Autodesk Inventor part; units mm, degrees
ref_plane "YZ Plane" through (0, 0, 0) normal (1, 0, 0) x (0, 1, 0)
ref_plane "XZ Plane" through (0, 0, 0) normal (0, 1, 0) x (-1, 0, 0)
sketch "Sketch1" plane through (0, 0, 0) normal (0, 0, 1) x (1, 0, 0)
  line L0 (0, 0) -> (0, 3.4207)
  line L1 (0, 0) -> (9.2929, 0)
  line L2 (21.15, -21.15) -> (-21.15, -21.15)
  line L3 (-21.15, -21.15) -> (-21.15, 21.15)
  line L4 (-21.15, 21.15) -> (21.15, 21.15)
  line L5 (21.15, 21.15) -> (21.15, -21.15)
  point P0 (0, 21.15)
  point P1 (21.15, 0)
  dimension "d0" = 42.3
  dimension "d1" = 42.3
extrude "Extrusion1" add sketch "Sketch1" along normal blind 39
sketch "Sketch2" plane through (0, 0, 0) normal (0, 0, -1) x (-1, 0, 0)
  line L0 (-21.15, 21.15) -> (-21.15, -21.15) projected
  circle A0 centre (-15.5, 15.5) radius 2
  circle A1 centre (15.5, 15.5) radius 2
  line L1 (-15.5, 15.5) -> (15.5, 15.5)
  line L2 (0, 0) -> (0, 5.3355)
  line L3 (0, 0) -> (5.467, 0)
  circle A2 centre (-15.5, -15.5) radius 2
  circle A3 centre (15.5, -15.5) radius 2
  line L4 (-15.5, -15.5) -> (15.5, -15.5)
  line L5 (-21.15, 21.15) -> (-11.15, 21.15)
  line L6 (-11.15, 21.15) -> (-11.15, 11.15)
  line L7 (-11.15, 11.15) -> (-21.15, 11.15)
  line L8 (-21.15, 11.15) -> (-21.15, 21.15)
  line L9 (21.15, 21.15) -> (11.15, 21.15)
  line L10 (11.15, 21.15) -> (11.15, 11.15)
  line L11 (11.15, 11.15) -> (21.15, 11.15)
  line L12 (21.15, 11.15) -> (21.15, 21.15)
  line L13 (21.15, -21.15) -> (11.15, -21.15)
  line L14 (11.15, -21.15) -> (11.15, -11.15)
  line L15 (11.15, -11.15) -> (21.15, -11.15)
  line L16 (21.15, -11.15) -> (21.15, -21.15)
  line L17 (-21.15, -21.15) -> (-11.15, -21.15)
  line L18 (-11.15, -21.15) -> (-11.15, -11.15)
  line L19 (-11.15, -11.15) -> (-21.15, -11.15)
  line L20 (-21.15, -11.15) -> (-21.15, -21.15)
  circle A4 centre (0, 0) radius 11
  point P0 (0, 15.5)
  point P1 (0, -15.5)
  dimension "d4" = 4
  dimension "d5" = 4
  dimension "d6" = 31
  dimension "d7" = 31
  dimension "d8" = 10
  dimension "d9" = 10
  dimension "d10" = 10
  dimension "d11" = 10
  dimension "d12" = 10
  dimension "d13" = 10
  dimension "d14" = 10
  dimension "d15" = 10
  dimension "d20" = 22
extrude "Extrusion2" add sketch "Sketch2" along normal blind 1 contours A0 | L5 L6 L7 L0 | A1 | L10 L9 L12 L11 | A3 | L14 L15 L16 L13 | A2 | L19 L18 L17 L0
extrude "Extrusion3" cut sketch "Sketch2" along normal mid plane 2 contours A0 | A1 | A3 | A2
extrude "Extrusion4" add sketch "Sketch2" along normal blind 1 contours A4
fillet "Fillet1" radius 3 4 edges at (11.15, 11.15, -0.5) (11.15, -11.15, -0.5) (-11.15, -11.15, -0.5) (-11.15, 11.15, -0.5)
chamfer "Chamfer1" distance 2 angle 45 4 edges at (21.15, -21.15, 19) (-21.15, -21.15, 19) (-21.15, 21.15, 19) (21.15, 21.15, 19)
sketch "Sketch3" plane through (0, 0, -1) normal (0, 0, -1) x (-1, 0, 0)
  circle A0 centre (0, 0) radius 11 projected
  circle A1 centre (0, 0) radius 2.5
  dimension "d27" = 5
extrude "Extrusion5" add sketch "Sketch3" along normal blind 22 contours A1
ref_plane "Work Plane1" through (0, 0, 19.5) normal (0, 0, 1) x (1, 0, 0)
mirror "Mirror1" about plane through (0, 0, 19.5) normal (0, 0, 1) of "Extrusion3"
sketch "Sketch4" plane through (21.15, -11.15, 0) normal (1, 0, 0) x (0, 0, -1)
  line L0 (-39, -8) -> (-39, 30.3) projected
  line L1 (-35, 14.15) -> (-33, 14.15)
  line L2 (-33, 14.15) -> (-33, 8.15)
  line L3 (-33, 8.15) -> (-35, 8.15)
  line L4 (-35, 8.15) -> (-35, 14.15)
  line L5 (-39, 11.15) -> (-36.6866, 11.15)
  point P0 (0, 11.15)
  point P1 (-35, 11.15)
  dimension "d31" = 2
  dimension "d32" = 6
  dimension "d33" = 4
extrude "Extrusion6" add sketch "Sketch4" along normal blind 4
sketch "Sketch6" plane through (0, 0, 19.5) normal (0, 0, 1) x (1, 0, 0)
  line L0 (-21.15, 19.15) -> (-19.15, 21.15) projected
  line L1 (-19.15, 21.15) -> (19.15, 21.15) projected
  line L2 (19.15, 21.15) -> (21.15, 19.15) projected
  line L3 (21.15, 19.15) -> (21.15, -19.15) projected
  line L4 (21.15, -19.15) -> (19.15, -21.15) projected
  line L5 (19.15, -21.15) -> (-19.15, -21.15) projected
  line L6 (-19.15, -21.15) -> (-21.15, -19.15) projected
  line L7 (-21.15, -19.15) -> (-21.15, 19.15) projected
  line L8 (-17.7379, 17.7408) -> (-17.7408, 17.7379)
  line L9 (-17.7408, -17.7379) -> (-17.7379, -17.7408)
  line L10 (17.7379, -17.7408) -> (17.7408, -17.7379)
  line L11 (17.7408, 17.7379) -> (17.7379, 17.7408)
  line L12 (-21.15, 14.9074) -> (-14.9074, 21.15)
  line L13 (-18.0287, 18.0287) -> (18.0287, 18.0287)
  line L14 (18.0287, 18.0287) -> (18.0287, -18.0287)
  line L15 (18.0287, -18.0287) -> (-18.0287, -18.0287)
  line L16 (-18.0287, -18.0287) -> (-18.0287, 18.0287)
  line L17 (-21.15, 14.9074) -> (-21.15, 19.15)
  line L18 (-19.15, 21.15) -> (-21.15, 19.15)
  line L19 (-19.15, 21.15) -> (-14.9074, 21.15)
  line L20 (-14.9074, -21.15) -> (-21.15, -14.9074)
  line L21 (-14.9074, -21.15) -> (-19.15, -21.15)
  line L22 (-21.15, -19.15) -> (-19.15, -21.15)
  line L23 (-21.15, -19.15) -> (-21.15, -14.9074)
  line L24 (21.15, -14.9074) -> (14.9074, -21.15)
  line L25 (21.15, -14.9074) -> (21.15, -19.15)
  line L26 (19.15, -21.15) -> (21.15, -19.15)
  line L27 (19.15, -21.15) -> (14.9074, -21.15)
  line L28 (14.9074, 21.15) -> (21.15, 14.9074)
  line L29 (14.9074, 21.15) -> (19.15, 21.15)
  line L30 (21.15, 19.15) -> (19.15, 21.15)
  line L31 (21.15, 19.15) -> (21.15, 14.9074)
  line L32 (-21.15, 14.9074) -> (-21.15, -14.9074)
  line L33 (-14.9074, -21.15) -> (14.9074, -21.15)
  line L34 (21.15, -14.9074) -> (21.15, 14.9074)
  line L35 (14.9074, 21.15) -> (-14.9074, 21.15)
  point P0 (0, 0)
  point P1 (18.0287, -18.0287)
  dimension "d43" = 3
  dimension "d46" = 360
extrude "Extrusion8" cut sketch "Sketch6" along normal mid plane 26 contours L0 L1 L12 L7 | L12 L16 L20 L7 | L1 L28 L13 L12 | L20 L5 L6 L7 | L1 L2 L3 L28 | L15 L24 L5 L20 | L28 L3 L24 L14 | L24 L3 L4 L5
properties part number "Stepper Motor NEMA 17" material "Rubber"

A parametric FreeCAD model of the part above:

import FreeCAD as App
import Part
import Sketcher


def edges_at(feature, points):
    """Names of the edges that pass closest to the given points."""
    edges = feature.Shape.Edges
    near = lambda p: min(range(len(edges)), key=lambda i: edges[i].distToShape(Part.Vertex(*p))[0])
    return sorted({f"Edge{near(p) + 1}" for p in points})

doc = App.newDocument("Part")
body = doc.addObject("PartDesign::Body", "Body")

# Sketch on XY plane
sketch1 = body.newObject("Sketcher::SketchObject", "Sketch")
sketch1.AttachmentSupport = (doc.getObject("XY_Plane"), [""])
sketch1.MapMode = "FlatFace"
sketch1.addGeometry(Part.LineSegment(App.Vector(-21.15, -21.15, 0), App.Vector(21.15, -21.15, 0)), False)
sketch1.addGeometry(Part.LineSegment(App.Vector(21.15, -21.15, 0), App.Vector(21.15, 21.15, 0)), False)
sketch1.addGeometry(Part.LineSegment(App.Vector(21.15, 21.15, 0), App.Vector(-21.15, 21.15, 0)), False)
sketch1.addGeometry(Part.LineSegment(App.Vector(-21.15, 21.15, 0), App.Vector(-21.15, -21.15, 0)), False)
sketch1.addConstraint(Sketcher.Constraint("Coincident", 0, 2, 1, 1))
sketch1.addConstraint(Sketcher.Constraint("Coincident", 1, 2, 2, 1))
sketch1.addConstraint(Sketcher.Constraint("Coincident", 2, 2, 3, 1))
sketch1.addConstraint(Sketcher.Constraint("Coincident", 3, 2, 0, 1))
sketch1.addConstraint(Sketcher.Constraint("Horizontal", 0))
sketch1.addConstraint(Sketcher.Constraint("Vertical", 1))
sketch1.addConstraint(Sketcher.Constraint("Horizontal", 2))
sketch1.addConstraint(Sketcher.Constraint("Vertical", 3))
sketch1.addConstraint(Sketcher.Constraint("Symmetric", 0, 2, 2, 2, -1, 1))
sketch1.addConstraint(Sketcher.Constraint("Equal", 2, 1))
sketch1.addConstraint(Sketcher.Constraint("DistanceX", 0, 1, 0, 2, 42.3))
pad1 = body.newObject("PartDesign::Pad", "Pad")
pad1.Profile = sketch1
pad1.Length = 39

# Sketch on XY plane
sketch2 = body.newObject("Sketcher::SketchObject", "Sketch001")
sketch2.AttachmentSupport = (doc.getObject("XY_Plane"), [""])
sketch2.MapMode = "FlatFace"
sketch2.addGeometry(Part.LineSegment(App.Vector(11.15, 21.15, 0), App.Vector(21.15, 21.15, 0)), False)
sketch2.addGeometry(Part.LineSegment(App.Vector(21.15, 21.15, 0), App.Vector(21.15, 11.15, 0)), False)
sketch2.addGeometry(Part.LineSegment(App.Vector(21.15, 11.15, 0), App.Vector(11.15, 11.15, 0)), False)
sketch2.addGeometry(Part.LineSegment(App.Vector(11.15, 11.15, 0), App.Vector(11.15, 15.5, 0)), False)
sketch2.addGeometry(Part.LineSegment(App.Vector(11.15, 15.5, 0), App.Vector(11.15, 21.15, 0)), False)
sketch2.addGeometry(Part.LineSegment(App.Vector(-11.15, 21.15, 0), App.Vector(-11.15, 15.5, 0)), False)
sketch2.addGeometry(Part.LineSegment(App.Vector(-11.15, 15.5, 0), App.Vector(-11.15, 11.15, 0)), False)
sketch2.addGeometry(Part.LineSegment(App.Vector(-11.15, 11.15, 0), App.Vector(-21.15, 11.15, 0)), False)
sketch2.addGeometry(Part.LineSegment(App.Vector(-21.15, 11.15, 0), App.Vector(-21.15, 21.15, 0)), False)
sketch2.addGeometry(Part.LineSegment(App.Vector(-21.15, 21.15, 0), App.Vector(-11.15, 21.15, 0)), False)
sketch2.addGeometry(Part.LineSegment(App.Vector(-11.15, -11.15, 0), App.Vector(-11.15, -15.5, 0)), False)
sketch2.addGeometry(Part.LineSegment(App.Vector(-11.15, -15.5, 0), App.Vector(-11.15, -21.15, 0)), False)
sketch2.addGeometry(Part.LineSegment(App.Vector(-11.15, -21.15, 0), App.Vector(-21.15, -21.15, 0)), False)
sketch2.addGeometry(Part.LineSegment(App.Vector(-21.15, -21.15, 0), App.Vector(-21.15, -11.15, 0)), False)
sketch2.addGeometry(Part.LineSegment(App.Vector(-21.15, -11.15, 0), App.Vector(-11.15, -11.15, 0)), False)
sketch2.addGeometry(Part.LineSegment(App.Vector(11.15, -11.15, 0), App.Vector(21.15, -11.15, 0)), False)
sketch2.addGeometry(Part.LineSegment(App.Vector(21.15, -11.15, 0), App.Vector(21.15, -21.15, 0)), False)
sketch2.addGeometry(Part.LineSegment(App.Vector(21.15, -21.15, 0), App.Vector(11.15, -21.15, 0)), False)
sketch2.addGeometry(Part.LineSegment(App.Vector(11.15, -21.15, 0), App.Vector(11.15, -15.5, 0)), False)
sketch2.addGeometry(Part.LineSegment(App.Vector(11.15, -15.5, 0), App.Vector(11.15, -11.15, 0)), False)
sketch2.addConstraint(Sketcher.Constraint("Coincident", 0, 2, 1, 1))
sketch2.addConstraint(Sketcher.Constraint("Coincident", 1, 2, 2, 1))
sketch2.addConstraint(Sketcher.Constraint("Coincident", 2, 2, 3, 1))
sketch2.addConstraint(Sketcher.Constraint("Coincident", 3, 2, 4, 1))
sketch2.addConstraint(Sketcher.Constraint("Coincident", 4, 2, 0, 1))
sketch2.addConstraint(Sketcher.Constraint("Coincident", 5, 2, 6, 1))
sketch2.addConstraint(Sketcher.Constraint("Coincident", 6, 2, 7, 1))
sketch2.addConstraint(Sketcher.Constraint("Coincident", 7, 2, 8, 1))
sketch2.addConstraint(Sketcher.Constraint("Coincident", 8, 2, 9, 1))
sketch2.addConstraint(Sketcher.Constraint("Coincident", 9, 2, 5, 1))
sketch2.addConstraint(Sketcher.Constraint("Coincident", 10, 2, 11, 1))
sketch2.addConstraint(Sketcher.Constraint("Coincident", 11, 2, 12, 1))
sketch2.addConstraint(Sketcher.Constraint("Coincident", 12, 2, 13, 1))
sketch2.addConstraint(Sketcher.Constraint("Coincident", 13, 2, 14, 1))
sketch2.addConstraint(Sketcher.Constraint("Coincident", 14, 2, 10, 1))
sketch2.addConstraint(Sketcher.Constraint("Coincident", 15, 2, 16, 1))
sketch2.addConstraint(Sketcher.Constraint("Coincident", 16, 2, 17, 1))
sketch2.addConstraint(Sketcher.Constraint("Coincident", 17, 2, 18, 1))
sketch2.addConstraint(Sketcher.Constraint("Coincident", 18, 2, 19, 1))
sketch2.addConstraint(Sketcher.Constraint("Coincident", 19, 2, 15, 1))
sketch2.addConstraint(Sketcher.Constraint("Horizontal", 0))
sketch2.addConstraint(Sketcher.Constraint("Vertical", 1))
sketch2.addConstraint(Sketcher.Constraint("Horizontal", 2))
sketch2.addConstraint(Sketcher.Constraint("Vertical", 3))
sketch2.addConstraint(Sketcher.Constraint("Vertical", 4))
sketch2.addConstraint(Sketcher.Constraint("Vertical", 5))
sketch2.addConstraint(Sketcher.Constraint("Vertical", 6))
sketch2.addConstraint(Sketcher.Constraint("Horizontal", 7))
sketch2.addConstraint(Sketcher.Constraint("Vertical", 8))
sketch2.addConstraint(Sketcher.Constraint("Horizontal", 9))
sketch2.addConstraint(Sketcher.Constraint("Vertical", 10))
sketch2.addConstraint(Sketcher.Constraint("Vertical", 11))
sketch2.addConstraint(Sketcher.Constraint("Horizontal", 12))
sketch2.addConstraint(Sketcher.Constraint("Vertical", 13))
sketch2.addConstraint(Sketcher.Constraint("Horizontal", 14))
sketch2.addConstraint(Sketcher.Constraint("Horizontal", 15))
sketch2.addConstraint(Sketcher.Constraint("Vertical", 16))
sketch2.addConstraint(Sketcher.Constraint("Horizontal", 17))
sketch2.addConstraint(Sketcher.Constraint("Vertical", 18))
sketch2.addConstraint(Sketcher.Constraint("Vertical", 19))
sketch2.addConstraint(Sketcher.Constraint("Symmetric", 3, 2, 10, 2, -1, 1))
sketch2.addConstraint(Sketcher.Constraint("Symmetric", 0, 2, 12, 2, -1, 1))
sketch2.addConstraint(Sketcher.Constraint("Symmetric", 7, 2, 15, 2, -1, 1))
sketch2.addConstraint(Sketcher.Constraint("Symmetric", 9, 2, 17, 2, -1, 1))
sketch2.addConstraint(Sketcher.Constraint("Symmetric", 3, 2, 5, 2, -2))
sketch2.addConstraint(Sketcher.Constraint("Symmetric", 1, 2, 7, 2, -2))
sketch2.addConstraint(Sketcher.Constraint("Horizontal", 4, 2, 8, 2))
sketch2.addConstraint(Sketcher.Constraint("Horizontal", 14, 2, 15, 2))
sketch2.addConstraint(Sketcher.Constraint("Horizontal", 10, 2, 18, 2))
sketch2.addConstraint(Sketcher.Constraint("Equal", 17, 1))
sketch2.addConstraint(Sketcher.Constraint("DistanceX", 0, 1, 0, 2, 10.0))
sketch2.addConstraint(Sketcher.Constraint("DistanceY", 10, 2, 5, 2, 31.0))
sketch2.addConstraint(Sketcher.Constraint("DistanceY", 3, 1, 3, 2, 4.35))
sketch2.addConstraint(Sketcher.Constraint("DistanceX", 5, 2, 3, 2, 22.3))
pad2 = body.newObject("PartDesign::Pad", "Pad001")
pad2.Profile = sketch2
pad2.Length = 1
pad2.Reversed = True

# Sketch on XY plane
sketch3 = body.newObject("Sketcher::SketchObject", "Sketch002")
sketch3.AttachmentSupport = (doc.getObject("XY_Plane"), [""])
sketch3.MapMode = "FlatFace"
sketch3.addGeometry(Part.Circle(App.Vector(15.5, 15.5, 0), App.Vector(0, 0, 1), 2), False)
sketch3.addGeometry(Part.Circle(App.Vector(-15.5, 15.5, 0), App.Vector(0, 0, 1), 2), False)
sketch3.addGeometry(Part.Circle(App.Vector(-15.5, -15.5, 0), App.Vector(0, 0, 1), 2), False)
sketch3.addGeometry(Part.Circle(App.Vector(15.5, -15.5, 0), App.Vector(0, 0, 1), 2), False)
sketch3.addConstraint(Sketcher.Constraint("Equal", 0, 1))
sketch3.addConstraint(Sketcher.Constraint("Equal", 1, 2))
sketch3.addConstraint(Sketcher.Constraint("Equal", 2, 3))
sketch3.addConstraint(Sketcher.Constraint("Symmetric", 0, 3, 2, 3, -1, 1))
sketch3.addConstraint(Sketcher.Constraint("Symmetric", 1, 3, 3, 3, -1, 1))
sketch3.addConstraint(Sketcher.Constraint("Symmetric", 0, 3, 1, 3, -2))
sketch3.addConstraint(Sketcher.Constraint("Diameter", 0, 4.0))
sketch3.addConstraint(Sketcher.Constraint("DistanceX", 1, 3, 0, 3, 31.0))
sketch3.addConstraint(Sketcher.Constraint("DistanceY", 2, 3, 1, 3, 31.0))
pocket1 = body.newObject("PartDesign::Pocket", "Pocket")
pocket1.Profile = sketch3
pocket1.Length = 2
pocket1.Midplane = True

# Sketch on XY plane
sketch4 = body.newObject("Sketcher::SketchObject", "Sketch003")
sketch4.AttachmentSupport = (doc.getObject("XY_Plane"), [""])
sketch4.MapMode = "FlatFace"
sketch4.addGeometry(Part.Circle(App.Vector(0, 0, 0), App.Vector(0, 0, 1), 11), False)
sketch4.addConstraint(Sketcher.Constraint("Coincident", 0, 3, -1, 1))
sketch4.addConstraint(Sketcher.Constraint("Diameter", 0, 22.0))
pad3 = body.newObject("PartDesign::Pad", "Pad002")
pad3.Profile = sketch4
pad3.Length = 1
pad3.Reversed = True
doc.recompute()

fillet = body.newObject("PartDesign::Fillet", "Fillet")
fillet.Base = (pad3, edges_at(pad3, [
    (11.15, 11.15, -0.5),
    (11.15, -11.15, -0.5),
    (-11.15, -11.15, -0.5),
    (-11.15, 11.15, -0.5),
]))
fillet.Radius = 3
doc.recompute()

chamfer = body.newObject("PartDesign::Chamfer", "Chamfer")
chamfer.Base = (fillet, edges_at(fillet, [
    (21.15, -21.15, 19),
    (-21.15, -21.15, 19),
    (-21.15, 21.15, 19),
    (21.15, 21.15, 19),
]))
chamfer.Size = 2

# Sketch on XY plane
sketch5 = body.newObject("Sketcher::SketchObject", "Sketch004")
sketch5.AttachmentSupport = (doc.getObject("XY_Plane"), [""])
sketch5.MapMode = "FlatFace"
sketch5.AttachmentOffset = App.Placement(App.Vector(0, 0, -1), App.Rotation())
sketch5.addGeometry(Part.Circle(App.Vector(0, 0, 0), App.Vector(0, 0, 1), 2.5), False)
sketch5.addConstraint(Sketcher.Constraint("Coincident", 0, 3, -1, 1))
sketch5.addConstraint(Sketcher.Constraint("Diameter", 0, 5.0))
pad4 = body.newObject("PartDesign::Pad", "Pad003")
pad4.Profile = sketch5
pad4.Length = 22
pad4.Reversed = True
doc.recompute()

datumplane = body.newObject("PartDesign::Plane", "DatumPlane")
datumplane.AttachmentSupport = (doc.getObject("XY_Plane"), [""])
datumplane.MapMode = "FlatFace"
datumplane.AttachmentOffset = App.Placement(App.Vector(0, 0, 19.5), App.Rotation())
mirrored = body.newObject("PartDesign::Mirrored", "Mirrored")
mirrored.Originals = [pocket1]
mirrored.MirrorPlane = (datumplane, [""])
body.Tip = mirrored

# Sketch on YZ plane
sketch6 = body.newObject("Sketcher::SketchObject", "Sketch005")
sketch6.AttachmentSupport = (doc.getObject("YZ_Plane"), [""])
sketch6.MapMode = "FlatFace"
sketch6.AttachmentOffset = App.Placement(App.Vector(0, 0, 21.15), App.Rotation())
sketch6.addGeometry(Part.LineSegment(App.Vector(3, 33, 0), App.Vector(3, 35, 0)), False)
sketch6.addGeometry(Part.LineSegment(App.Vector(3, 35, 0), App.Vector(-3, 35, 0)), False)
sketch6.addGeometry(Part.LineSegment(App.Vector(-3, 35, 0), App.Vector(-3, 33, 0)), False)
sketch6.addGeometry(Part.LineSegment(App.Vector(-3, 33, 0), App.Vector(3, 33, 0)), False)
sketch6.addConstraint(Sketcher.Constraint("Coincident", 0, 2, 1, 1))
sketch6.addConstraint(Sketcher.Constraint("Coincident", 1, 2, 2, 1))
sketch6.addConstraint(Sketcher.Constraint("Coincident", 2, 2, 3, 1))
sketch6.addConstraint(Sketcher.Constraint("Coincident", 3, 2, 0, 1))
sketch6.addConstraint(Sketcher.Constraint("Vertical", 0))
sketch6.addConstraint(Sketcher.Constraint("Horizontal", 1))
sketch6.addConstraint(Sketcher.Constraint("Vertical", 2))
sketch6.addConstraint(Sketcher.Constraint("Horizontal", 3))
sketch6.addConstraint(Sketcher.Constraint("DistanceX", 1, 2, 1, 1, 6.0))
sketch6.addConstraint(Sketcher.Constraint("DistanceY", 0, 1, 0, 2, 2.0))
sketch6.addConstraint(Sketcher.Constraint("DistanceX", -1, 1, 0, 2, 3.0))
sketch6.addConstraint(Sketcher.Constraint("DistanceY", -1, 1, 0, 2, 35.0))
pad5 = body.newObject("PartDesign::Pad", "Pad004")
pad5.Profile = sketch6
pad5.Length = 4

# Sketch on XY plane
sketch7 = body.newObject("Sketcher::SketchObject", "Sketch006")
sketch7.AttachmentSupport = (doc.getObject("XY_Plane"), [""])
sketch7.MapMode = "FlatFace"
sketch7.AttachmentOffset = App.Placement(App.Vector(0, 0, 19.5), App.Rotation())
sketch7.addGeometry(Part.LineSegment(App.Vector(-19.15, 21.15, 0), App.Vector(-21.15, 19.15, 0)), False)
sketch7.addGeometry(Part.LineSegment(App.Vector(-21.15, 19.15, 0), App.Vector(-21.15, -19.15, 0)), False)
sketch7.addGeometry(Part.LineSegment(App.Vector(-21.15, -19.15, 0), App.Vector(-19.15, -21.15, 0)), False)
sketch7.addGeometry(Part.LineSegment(App.Vector(-19.15, -21.15, 0), App.Vector(19.15, -21.15, 0)), False)
sketch7.addGeometry(Part.LineSegment(App.Vector(19.15, -21.15, 0), App.Vector(21.15, -19.15, 0)), False)
sketch7.addGeometry(Part.LineSegment(App.Vector(21.15, -19.15, 0), App.Vector(21.15, 19.15, 0)), False)
sketch7.addGeometry(Part.LineSegment(App.Vector(21.15, 19.15, 0), App.Vector(19.15, 21.15, 0)), False)
sketch7.addGeometry(Part.LineSegment(App.Vector(19.15, 21.15, 0), App.Vector(-19.15, 21.15, 0)), False)
sketch7.addGeometry(Part.LineSegment(App.Vector(-18.0287, 18.0287, 0), App.Vector(18.0287, 18.0287, 0)), False)
sketch7.addGeometry(Part.LineSegment(App.Vector(18.0287, 18.0287, 0), App.Vector(18.0287, -18.0287, 0)), False)
sketch7.addGeometry(Part.LineSegment(App.Vector(18.0287, -18.0287, 0), App.Vector(-18.0287, -18.0287, 0)), False)
sketch7.addGeometry(Part.LineSegment(App.Vector(-18.0287, -18.0287, 0), App.Vector(-18.0287, 18.0287, 0)), False)
sketch7.addConstraint(Sketcher.Constraint("Coincident", 0, 2, 1, 1))
sketch7.addConstraint(Sketcher.Constraint("Coincident", 1, 2, 2, 1))
sketch7.addConstraint(Sketcher.Constraint("Coincident", 2, 2, 3, 1))
sketch7.addConstraint(Sketcher.Constraint("Coincident", 3, 2, 4, 1))
sketch7.addConstraint(Sketcher.Constraint("Coincident", 4, 2, 5, 1))
sketch7.addConstraint(Sketcher.Constraint("Coincident", 5, 2, 6, 1))
sketch7.addConstraint(Sketcher.Constraint("Coincident", 6, 2, 7, 1))
sketch7.addConstraint(Sketcher.Constraint("Coincident", 7, 2, 0, 1))
sketch7.addConstraint(Sketcher.Constraint("Coincident", 8, 2, 9, 1))
sketch7.addConstraint(Sketcher.Constraint("Coincident", 9, 2, 10, 1))
sketch7.addConstraint(Sketcher.Constraint("Coincident", 10, 2, 11, 1))
sketch7.addConstraint(Sketcher.Constraint("Coincident", 11, 2, 8, 1))
sketch7.addConstraint(Sketcher.Constraint("Vertical", 1))
sketch7.addConstraint(Sketcher.Constraint("Horizontal", 3))
sketch7.addConstraint(Sketcher.Constraint("Vertical", 5))
sketch7.addConstraint(Sketcher.Constraint("Horizontal", 7))
sketch7.addConstraint(Sketcher.Constraint("Horizontal", 8))
sketch7.addConstraint(Sketcher.Constraint("Vertical", 9))
sketch7.addConstraint(Sketcher.Constraint("Horizontal", 10))
sketch7.addConstraint(Sketcher.Constraint("Vertical", 11))
sketch7.addConstraint(Sketcher.Constraint("Symmetric", 0, 2, 4, 2, -1, 1))
sketch7.addConstraint(Sketcher.Constraint("Symmetric", 2, 2, 6, 2, -1, 1))
sketch7.addConstraint(Sketcher.Constraint("Symmetric", 8, 2, 10, 2, -1, 1))
sketch7.addConstraint(Sketcher.Constraint("Perpendicular", 0, 2))
sketch7.addConstraint(Sketcher.Constraint("Perpendicular", 2, 4))
sketch7.addConstraint(Sketcher.Constraint("Perpendicular", 4, 6))
sketch7.addConstraint(Sketcher.Constraint("Horizontal", 1, 2, 4, 2))
sketch7.addConstraint(Sketcher.Constraint("Vertical", 3, 2, 6, 2))
sketch7.addConstraint(Sketcher.Constraint("Equal", 7, 1))
sketch7.addConstraint(Sketcher.Constraint("Equal", 10, 9))
sketch7.addConstraint(Sketcher.Constraint("DistanceX", 3, 1, 3, 2, 38.3))
sketch7.addConstraint(Sketcher.Constraint("DistanceX", 1, 2, 2, 2, 2.0))
sketch7.addConstraint(Sketcher.Constraint("DistanceX", 8, 1, 8, 2, 36.0574))
pocket2 = body.newObject("PartDesign::Pocket", "Pocket001")
pocket2.Profile = sketch7
pocket2.Length = 26
pocket2.Midplane = True

doc.recompute()
